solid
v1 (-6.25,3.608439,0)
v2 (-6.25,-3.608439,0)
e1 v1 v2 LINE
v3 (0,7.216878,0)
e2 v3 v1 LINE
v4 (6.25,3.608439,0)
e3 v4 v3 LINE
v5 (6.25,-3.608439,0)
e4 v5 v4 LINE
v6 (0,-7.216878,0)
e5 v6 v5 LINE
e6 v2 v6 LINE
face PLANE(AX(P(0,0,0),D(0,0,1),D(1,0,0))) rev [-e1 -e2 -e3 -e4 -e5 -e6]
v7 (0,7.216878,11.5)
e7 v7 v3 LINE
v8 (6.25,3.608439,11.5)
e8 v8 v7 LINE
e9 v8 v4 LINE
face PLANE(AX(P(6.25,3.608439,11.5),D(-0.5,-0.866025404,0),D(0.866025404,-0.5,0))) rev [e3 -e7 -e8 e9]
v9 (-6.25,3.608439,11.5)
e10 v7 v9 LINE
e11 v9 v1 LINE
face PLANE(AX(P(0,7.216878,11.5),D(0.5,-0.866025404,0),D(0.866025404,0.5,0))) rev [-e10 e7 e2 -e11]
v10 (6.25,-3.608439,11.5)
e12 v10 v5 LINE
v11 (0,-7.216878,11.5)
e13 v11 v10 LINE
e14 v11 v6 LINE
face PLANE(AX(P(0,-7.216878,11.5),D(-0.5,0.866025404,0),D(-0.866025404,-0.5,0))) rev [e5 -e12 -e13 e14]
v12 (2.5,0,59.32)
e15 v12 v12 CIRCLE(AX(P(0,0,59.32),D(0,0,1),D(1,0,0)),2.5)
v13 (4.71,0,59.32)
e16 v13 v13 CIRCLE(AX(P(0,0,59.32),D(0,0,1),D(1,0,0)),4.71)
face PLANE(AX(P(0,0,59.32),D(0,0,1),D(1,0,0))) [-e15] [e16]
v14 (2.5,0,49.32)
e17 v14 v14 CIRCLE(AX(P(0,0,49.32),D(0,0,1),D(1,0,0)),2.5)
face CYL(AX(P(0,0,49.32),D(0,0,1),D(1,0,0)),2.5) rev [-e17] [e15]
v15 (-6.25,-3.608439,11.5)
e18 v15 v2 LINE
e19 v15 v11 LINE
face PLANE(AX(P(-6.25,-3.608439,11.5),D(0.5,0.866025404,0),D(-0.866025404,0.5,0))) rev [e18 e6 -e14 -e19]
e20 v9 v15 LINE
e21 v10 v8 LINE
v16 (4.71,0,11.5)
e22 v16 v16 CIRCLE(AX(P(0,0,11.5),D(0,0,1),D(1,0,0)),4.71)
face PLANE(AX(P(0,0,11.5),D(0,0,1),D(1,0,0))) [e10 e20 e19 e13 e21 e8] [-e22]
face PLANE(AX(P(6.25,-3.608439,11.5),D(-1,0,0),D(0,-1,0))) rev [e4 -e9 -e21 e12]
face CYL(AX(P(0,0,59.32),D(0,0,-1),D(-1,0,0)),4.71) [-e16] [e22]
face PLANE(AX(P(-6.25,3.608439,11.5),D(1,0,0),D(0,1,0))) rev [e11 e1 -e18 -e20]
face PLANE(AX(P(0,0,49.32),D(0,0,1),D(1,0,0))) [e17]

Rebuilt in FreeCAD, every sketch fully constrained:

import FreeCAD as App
import Part
import Sketcher

V = App.Vector
Q = App.Units.Quantity


def add_polygon(sketch, points):
    """Adds a closed chain of lines whose ends are joined by coincident constraints."""
    first, n = sketch.GeometryCount, len(points)
    for a, b in zip(points, points[1:] + points[:1]):
        sketch.addGeometry(Part.LineSegment(App.Vector(*a, 0), App.Vector(*b, 0)), False)
    for i in range(n):
        sketch.addConstraint(Sketcher.Constraint("Coincident", first + i, 2, first + (i + 1) % n, 1))

doc = App.newDocument("Part")
params = doc.addObject("Spreadsheet::Sheet", "Params")
for row, (alias, value) in enumerate([
    ("pad1_length", "11.5 mm"),
    ("sketch2_diameter", "9.42 mm"),
    ("pad2_length", "47.82 mm"),
    ("sketch3_diameter", "5 mm"),
    ("pocket1_length", "10 mm"),
], start=1):
    params.set(f"A{row}", alias)
    params.set(f"B{row}", "=" + value)
    params.setAlias(f"B{row}", alias)

body = doc.addObject("PartDesign::Body", "Body")

# Sketch on XY plane
sketch1 = body.newObject("Sketcher::SketchObject", "Sketch")
sketch1.AttachmentSupport = (doc.getObject("XY_Plane"), [""])
sketch1.MapMode = "FlatFace"
add_polygon(sketch1, [(0, 7.216878), (-6.25, 3.608439), (-6.25, -3.608439), (0, -7.216878), (6.25, -3.608439), (6.25, 3.608439)])  # lines 0-5
sketch1.addConstraint([
    Sketcher.Constraint("Vertical", 1),
    Sketcher.Constraint("Vertical", 4),
    Sketcher.Constraint("Symmetric", 0, 2, 3, 2, -1, 1),
    Sketcher.Constraint("Symmetric", 2, 2, 5, 2, -1, 1),
    Sketcher.Constraint("PointOnObject", 2, 2, -2),
    Sketcher.Constraint("Parallel", 2, 5),
    Sketcher.Constraint("Horizontal", 1, 2, 3, 2),
    Sketcher.Constraint("Angle", 0, Q("-150 deg")),
    Sketcher.Constraint("DistanceX", 1, 2, 3, 2, 12.5),
    Sketcher.Constraint("DistanceY", 1, 2, 1, 1, 7.216878),
])
pad1 = body.newObject("PartDesign::Pad", "Pad")
pad1.Profile = sketch1
pad1.setExpression("Length", "Params.pad1_length")

# Sketch on XY plane
sketch2 = body.newObject("Sketcher::SketchObject", "Sketch001")
sketch2.AttachmentSupport = (doc.getObject("XY_Plane"), [""])
sketch2.MapMode = "FlatFace"
sketch2.AttachmentOffset = App.Placement(V(0, 0, 11.5), App.Rotation())
sketch2.addGeometry(Part.Circle(V(0, 0, 0), V(0, 0, 1), 4.71), False)
sketch2.addConstraint([
    Sketcher.Constraint("Coincident", 0, 3, -1, 1),
    Sketcher.Constraint("Diameter", 0, 9.42),
])
sketch2.setExpression("Constraints[1]", "Params.sketch2_diameter")
pad2 = body.newObject("PartDesign::Pad", "Pad001")
pad2.Profile = sketch2
pad2.setExpression("Length", "Params.pad2_length")

# Sketch on XY plane
sketch3 = body.newObject("Sketcher::SketchObject", "Sketch002")
sketch3.AttachmentSupport = (doc.getObject("XY_Plane"), [""])
sketch3.MapMode = "FlatFace"
sketch3.AttachmentOffset = App.Placement(V(0, 0, 59.32), App.Rotation())
sketch3.addGeometry(Part.Circle(V(0, 0, 0), V(0, 0, 1), 2.5), False)
sketch3.addConstraint([
    Sketcher.Constraint("Coincident", 0, 3, -1, 1),
    Sketcher.Constraint("Diameter", 0, 5.0),
])
sketch3.setExpression("Constraints[1]", "Params.sketch3_diameter")
pocket1 = body.newObject("PartDesign::Pocket", "Pocket")
pocket1.Profile = sketch3
pocket1.setExpression("Length", "Params.pocket1_length")

doc.recompute()
